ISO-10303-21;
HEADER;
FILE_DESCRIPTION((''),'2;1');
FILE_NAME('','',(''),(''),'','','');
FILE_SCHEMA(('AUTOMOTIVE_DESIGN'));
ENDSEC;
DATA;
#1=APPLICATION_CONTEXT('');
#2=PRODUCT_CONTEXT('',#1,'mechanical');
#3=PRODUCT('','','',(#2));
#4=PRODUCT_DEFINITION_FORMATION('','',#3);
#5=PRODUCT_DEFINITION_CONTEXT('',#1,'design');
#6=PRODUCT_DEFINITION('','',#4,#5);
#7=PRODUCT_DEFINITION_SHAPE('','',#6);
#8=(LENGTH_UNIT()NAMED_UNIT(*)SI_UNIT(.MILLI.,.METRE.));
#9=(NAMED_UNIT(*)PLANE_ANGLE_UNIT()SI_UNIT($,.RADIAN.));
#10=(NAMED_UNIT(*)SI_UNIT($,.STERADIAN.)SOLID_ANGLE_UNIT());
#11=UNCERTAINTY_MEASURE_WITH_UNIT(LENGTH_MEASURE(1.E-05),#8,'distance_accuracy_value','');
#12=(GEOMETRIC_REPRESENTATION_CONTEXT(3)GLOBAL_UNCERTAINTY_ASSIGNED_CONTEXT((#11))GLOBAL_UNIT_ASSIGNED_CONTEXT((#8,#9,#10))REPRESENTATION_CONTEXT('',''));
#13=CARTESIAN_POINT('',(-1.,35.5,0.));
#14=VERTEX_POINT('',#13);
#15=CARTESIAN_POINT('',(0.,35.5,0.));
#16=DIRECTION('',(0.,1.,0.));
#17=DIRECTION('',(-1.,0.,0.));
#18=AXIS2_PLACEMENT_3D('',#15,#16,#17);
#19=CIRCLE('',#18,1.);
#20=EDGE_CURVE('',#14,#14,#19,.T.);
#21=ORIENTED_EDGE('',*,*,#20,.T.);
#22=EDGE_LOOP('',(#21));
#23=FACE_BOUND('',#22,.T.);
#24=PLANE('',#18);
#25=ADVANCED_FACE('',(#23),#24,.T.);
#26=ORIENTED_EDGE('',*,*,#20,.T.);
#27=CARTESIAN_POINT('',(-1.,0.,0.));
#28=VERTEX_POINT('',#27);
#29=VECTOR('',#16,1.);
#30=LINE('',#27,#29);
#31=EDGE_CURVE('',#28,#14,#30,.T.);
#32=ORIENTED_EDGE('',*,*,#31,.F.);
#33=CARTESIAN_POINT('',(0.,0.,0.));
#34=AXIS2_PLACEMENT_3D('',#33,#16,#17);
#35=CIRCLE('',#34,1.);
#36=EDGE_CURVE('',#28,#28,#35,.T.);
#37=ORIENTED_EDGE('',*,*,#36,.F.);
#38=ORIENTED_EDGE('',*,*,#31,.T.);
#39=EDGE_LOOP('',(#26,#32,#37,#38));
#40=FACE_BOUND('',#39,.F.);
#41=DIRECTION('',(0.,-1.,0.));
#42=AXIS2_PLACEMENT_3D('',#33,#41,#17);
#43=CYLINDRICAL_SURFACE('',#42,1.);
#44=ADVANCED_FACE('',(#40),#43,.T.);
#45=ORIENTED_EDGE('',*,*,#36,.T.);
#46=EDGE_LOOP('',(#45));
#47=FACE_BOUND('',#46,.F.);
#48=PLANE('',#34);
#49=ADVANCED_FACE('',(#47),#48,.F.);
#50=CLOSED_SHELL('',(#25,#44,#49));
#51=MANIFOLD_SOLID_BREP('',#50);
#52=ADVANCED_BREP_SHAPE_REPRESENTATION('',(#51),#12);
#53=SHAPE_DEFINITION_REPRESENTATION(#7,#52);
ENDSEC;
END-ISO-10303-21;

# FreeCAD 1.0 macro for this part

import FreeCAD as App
import Part
import Sketcher

doc = App.newDocument("Part")
body = doc.addObject("PartDesign::Body", "Body")

# Sketch on XZ plane
sketch1 = body.newObject("Sketcher::SketchObject", "Sketch")
sketch1.AttachmentSupport = (doc.getObject("XZ_Plane"), [""])
sketch1.MapMode = "FlatFace"
sketch1.addGeometry(Part.Circle(App.Vector(0, 0, 0), App.Vector(0, 0, 1), 1), False)
sketch1.addConstraint([
    Sketcher.Constraint("Coincident", 0, 3, -1, 1),
    Sketcher.Constraint("Diameter", 0, 2.0),
])
pad1 = body.newObject("PartDesign::Pad", "Pad")
pad1.Profile = sketch1
pad1.Length = 35.5
pad1.Reversed = True

doc.recompute()
